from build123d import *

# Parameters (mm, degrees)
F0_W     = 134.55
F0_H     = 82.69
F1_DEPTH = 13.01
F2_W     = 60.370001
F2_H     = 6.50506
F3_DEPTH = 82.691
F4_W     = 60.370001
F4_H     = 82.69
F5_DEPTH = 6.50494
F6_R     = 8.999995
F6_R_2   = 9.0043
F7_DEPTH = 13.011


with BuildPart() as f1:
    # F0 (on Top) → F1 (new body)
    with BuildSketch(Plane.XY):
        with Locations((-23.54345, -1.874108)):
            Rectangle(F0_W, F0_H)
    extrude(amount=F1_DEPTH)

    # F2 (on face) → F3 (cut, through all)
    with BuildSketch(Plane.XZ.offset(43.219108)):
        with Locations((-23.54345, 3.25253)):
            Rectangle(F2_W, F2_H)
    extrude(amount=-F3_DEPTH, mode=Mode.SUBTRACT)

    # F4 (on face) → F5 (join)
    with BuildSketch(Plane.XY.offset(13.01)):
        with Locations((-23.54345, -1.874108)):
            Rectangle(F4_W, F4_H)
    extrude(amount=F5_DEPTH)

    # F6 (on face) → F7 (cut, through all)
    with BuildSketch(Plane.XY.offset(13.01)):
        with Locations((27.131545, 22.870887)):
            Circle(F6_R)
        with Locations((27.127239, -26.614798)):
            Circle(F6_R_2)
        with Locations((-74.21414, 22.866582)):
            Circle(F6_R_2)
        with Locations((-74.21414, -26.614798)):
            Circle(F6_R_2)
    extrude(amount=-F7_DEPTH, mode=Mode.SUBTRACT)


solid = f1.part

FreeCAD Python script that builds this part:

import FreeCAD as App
import Part
import Sketcher

V = App.Vector
Q = App.Units.Quantity


def add_polygon(sketch, points):
    """Adds a closed chain of lines whose ends are joined by coincident constraints."""
    first, n = sketch.GeometryCount, len(points)
    for a, b in zip(points, points[1:] + points[:1]):
        sketch.addGeometry(Part.LineSegment(App.Vector(*a, 0), App.Vector(*b, 0)), False)
    for i in range(n):
        sketch.addConstraint(Sketcher.Constraint("Coincident", first + i, 2, first + (i + 1) % n, 1))

doc = App.newDocument("Part")
params = doc.addObject("Spreadsheet::Sheet", "Params")
for row, (alias, value) in enumerate([
    ("pad1_length", "13.01 mm"),
    ("pad2_length", "0.2561 in"),
    ("sketch4_diameter", "0.709 in"),
], start=1):
    params.set(f"A{row}", alias)
    params.set(f"B{row}", "=" + value)
    params.setAlias(f"B{row}", alias)

body = doc.addObject("PartDesign::Body", "Body")

sketch1 = body.newObject("Sketcher::SketchObject", "Sketch")
sketch1.AttachmentSupport = (doc.getObject("XY_Plane"), [""])
sketch1.MapMode = "FlatFace"
add_polygon(sketch1, [(-90.81845, 39.470892), (-90.81845, -43.219108), (43.73155, -43.219108), (43.73155, 39.470892)])
sketch1.addConstraint([
    Sketcher.Constraint("Vertical", 0),
    Sketcher.Constraint("Horizontal", 1),
    Sketcher.Constraint("Vertical", 2),
    Sketcher.Constraint("Horizontal", 3),
    Sketcher.Constraint("DistanceX", 1, 1, 1, 2, Q("134.55 mm")),
    Sketcher.Constraint("DistanceY", 0, 2, 0, 1, Q("82.69 mm")),
    Sketcher.Constraint("DistanceX", 0, 2, -1, 1, Q("90.81845 mm")),
    Sketcher.Constraint("DistanceY", 0, 2, -1, 1, Q("43.219108 mm")),
])
pad1 = body.newObject("PartDesign::Pad", "Pad")
pad1.Profile = sketch1
pad1.setExpression("Length", "Params.pad1_length")

sketch2 = body.newObject("Sketcher::SketchObject", "Sketch001")
sketch2.AttachmentSupport = (doc.getObject("XZ_Plane"), [""])
sketch2.MapMode = "FlatFace"
sketch2.AttachmentOffset = App.Placement(V(0, 0, 43.219108), App.Rotation())
add_polygon(sketch2, [(-53.728451, 6.50506), (-53.728451, 0), (6.641551, 0), (6.641551, 6.50506)])
sketch2.addConstraint([
    Sketcher.Constraint("Vertical", 0),
    Sketcher.Constraint("Horizontal", 1),
    Sketcher.Constraint("Vertical", 2),
    Sketcher.Constraint("Horizontal", 3),
    Sketcher.Constraint("PointOnObject", 0, 2, -1),
    Sketcher.Constraint("DistanceX", 1, 1, 1, 2, Q("60.370001 mm")),
    Sketcher.Constraint("DistanceY", 0, 2, 0, 1, Q("6.50506 mm")),
    Sketcher.Constraint("DistanceX", 0, 2, -1, 1, Q("53.728451 mm")),
])
pocket1 = body.newObject("PartDesign::Pocket", "Pocket")
pocket1.Profile = sketch2
pocket1.Type = "ThroughAll"

sketch3 = body.newObject("Sketcher::SketchObject", "Sketch002")
sketch3.AttachmentSupport = (doc.getObject("XY_Plane"), [""])
sketch3.MapMode = "FlatFace"
sketch3.AttachmentOffset = App.Placement(V(0, 0, 13.01), App.Rotation())
add_polygon(sketch3, [(-53.728451, 39.470892), (-53.728451, -43.219108), (6.641551, -43.219108), (6.641551, 39.470892)])
sketch3.addConstraint([
    Sketcher.Constraint("Vertical", 0),
    Sketcher.Constraint("Horizontal", 1),
    Sketcher.Constraint("Vertical", 2),
    Sketcher.Constraint("Horizontal", 3),
    Sketcher.Constraint("DistanceX", 1, 1, 1, 2, Q("60.370001 mm")),
    Sketcher.Constraint("DistanceY", 0, 2, 0, 1, Q("82.69 mm")),
    Sketcher.Constraint("DistanceX", 0, 2, -1, 1, Q("53.728451 mm")),
    Sketcher.Constraint("DistanceY", 0, 2, -1, 1, Q("43.219108 mm")),
])
pad2 = body.newObject("PartDesign::Pad", "Pad001")
pad2.Profile = sketch3
pad2.setExpression("Length", "Params.pad2_length")

sketch4 = body.newObject("Sketcher::SketchObject", "Sketch003")
sketch4.AttachmentSupport = (doc.getObject("XY_Plane"), [""])
sketch4.MapMode = "FlatFace"
sketch4.AttachmentOffset = App.Placement(V(0, 0, 13.01), App.Rotation())
sketch4.addGeometry([
    Part.Circle(V(27.131545, 22.870887, 0), V(0, 0, 1), 8.999995),
    Part.Circle(V(27.127239, -26.614798, 0), V(0, 0, 1), 9.0043),
    Part.Circle(V(-74.21414, 22.866582, 0), V(0, 0, 1), 9.0043),
    Part.Circle(V(-74.21414, -26.614798, 0), V(0, 0, 1), 9.0043),
], False)
sketch4.addConstraint([
    Sketcher.Constraint("Equal", 1, 2),
    Sketcher.Constraint("Equal", 2, 3),
    Sketcher.Constraint("Horizontal", 1, 3, 3, 3),
    Sketcher.Constraint("Vertical", 2, 3, 3, 3),
    Sketcher.Constraint("Diameter", 1, Q("0.709 in")),
    Sketcher.Constraint("Diameter", 0, Q("17.99999 mm")),
    Sketcher.Constraint("DistanceY", 1, 3, -1, 1, Q("26.614798 mm")),
    Sketcher.Constraint("DistanceX", -1, 1, 1, 3, Q("27.127239 mm")),
    Sketcher.Constraint("DistanceX", 2, 3, -1, 1, Q("74.21414 mm")),
    Sketcher.Constraint("DistanceY", 1, 3, 2, 3, Q("49.48138 mm")),
    Sketcher.Constraint("DistanceX", -1, 1, 0, 3, Q("27.131545 mm")),
    Sketcher.Constraint("DistanceY", -1, 1, 0, 3, Q("22.870887 mm")),
])
sketch4.setExpression("Constraints[4]", "Params.sketch4_diameter")
pocket2 = body.newObject("PartDesign::Pocket", "Pocket001")
pocket2.Profile = sketch4
pocket2.Type = "ThroughAll"

doc.recompute()
